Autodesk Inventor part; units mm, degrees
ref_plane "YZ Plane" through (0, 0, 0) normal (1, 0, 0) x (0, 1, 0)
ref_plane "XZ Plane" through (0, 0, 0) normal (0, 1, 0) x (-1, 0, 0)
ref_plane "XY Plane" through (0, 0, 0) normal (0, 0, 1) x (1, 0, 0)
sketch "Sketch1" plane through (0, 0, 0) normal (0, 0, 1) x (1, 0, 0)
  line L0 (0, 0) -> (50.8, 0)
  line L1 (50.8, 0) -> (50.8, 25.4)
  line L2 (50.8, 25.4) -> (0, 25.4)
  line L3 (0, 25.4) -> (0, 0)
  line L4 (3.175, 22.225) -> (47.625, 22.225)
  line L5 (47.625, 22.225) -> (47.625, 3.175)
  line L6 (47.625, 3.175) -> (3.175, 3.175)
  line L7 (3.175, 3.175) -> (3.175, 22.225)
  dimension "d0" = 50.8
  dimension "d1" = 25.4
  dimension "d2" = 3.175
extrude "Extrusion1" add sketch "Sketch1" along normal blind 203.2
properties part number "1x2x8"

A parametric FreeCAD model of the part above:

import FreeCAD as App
import Part
import Sketcher
from FreeCAD import Vector
Q = App.Units.Quantity


def add_polygon(sketch, points):
    """Adds a closed chain of lines whose ends are joined by coincident constraints."""
    first, n = sketch.GeometryCount, len(points)
    for a, b in zip(points, points[1:] + points[:1]):
        sketch.addGeometry(Part.LineSegment(App.Vector(*a, 0), App.Vector(*b, 0)), False)
    for i in range(n):
        sketch.addConstraint(Sketcher.Constraint("Coincident", first + i, 2, first + (i + 1) % n, 1))

doc = App.newDocument("Part")
params = doc.addObject("Spreadsheet::Sheet", "Params")
for row, (alias, value) in enumerate([
    ("sketch1_width", "2 in"),
    ("sketch1_height", "1 in"),
    ("pad1_length", "8 in"),
], start=1):
    params.set(f"A{row}", alias)
    params.set(f"B{row}", "=" + value)
    params.setAlias(f"B{row}", alias)

body = doc.addObject("PartDesign::Body", "Body")

# Sketch on XY plane
sketch1 = doc.addObject("Sketcher::SketchObject", "Sketch")
body.addObject(sketch1)
sketch1.AttachmentSupport = (doc.XY_Plane, [""])
sketch1.MapMode = "FlatFace"
add_polygon(sketch1, [(0, 25), (0, 0), (51, 0), (51, 25)])  # lines 0-3
add_polygon(sketch1, [(3, 3), (3, 22), (48, 22), (48, 3)])  # lines 4-7
sketch1.addConstraint([
    Sketcher.Constraint("Vertical", 0),
    Sketcher.Constraint("Horizontal", 1),
    Sketcher.Constraint("Vertical", 2),
    Sketcher.Constraint("Horizontal", 3),
    Sketcher.Constraint("Vertical", 4),
    Sketcher.Constraint("Horizontal", 5),
    Sketcher.Constraint("Vertical", 6),
    Sketcher.Constraint("Horizontal", 7),
    Sketcher.Constraint("Coincident", 0, 2, -1, 1),
    Sketcher.Constraint("DistanceX", 1, 1, 1, 2, Q("2 in")),
    Sketcher.Constraint("DistanceY", 0, 2, 0, 1, Q("1 in")),
    Sketcher.Constraint("DistanceX", -1, 1, 4, 2, Q("0.125 in")),
    Sketcher.Constraint("DistanceY", -1, 1, 6, 2, Q("0.125 in")),
    Sketcher.Constraint("DistanceY", 4, 2, 3, 2, Q("0.125 in")),
    Sketcher.Constraint("DistanceX", 5, 2, 2, 2, Q("0.125 in")),
])
sketch1.setExpression("Constraints[17]", "Params.sketch1_width")
sketch1.setExpression("Constraints[18]", "Params.sketch1_height")
pad1 = doc.addObject("PartDesign::Pad", "Pad")
body.addObject(pad1)
pad1.Profile = sketch1
pad1.setExpression("Length", "Params.pad1_length")

doc.recompute()
